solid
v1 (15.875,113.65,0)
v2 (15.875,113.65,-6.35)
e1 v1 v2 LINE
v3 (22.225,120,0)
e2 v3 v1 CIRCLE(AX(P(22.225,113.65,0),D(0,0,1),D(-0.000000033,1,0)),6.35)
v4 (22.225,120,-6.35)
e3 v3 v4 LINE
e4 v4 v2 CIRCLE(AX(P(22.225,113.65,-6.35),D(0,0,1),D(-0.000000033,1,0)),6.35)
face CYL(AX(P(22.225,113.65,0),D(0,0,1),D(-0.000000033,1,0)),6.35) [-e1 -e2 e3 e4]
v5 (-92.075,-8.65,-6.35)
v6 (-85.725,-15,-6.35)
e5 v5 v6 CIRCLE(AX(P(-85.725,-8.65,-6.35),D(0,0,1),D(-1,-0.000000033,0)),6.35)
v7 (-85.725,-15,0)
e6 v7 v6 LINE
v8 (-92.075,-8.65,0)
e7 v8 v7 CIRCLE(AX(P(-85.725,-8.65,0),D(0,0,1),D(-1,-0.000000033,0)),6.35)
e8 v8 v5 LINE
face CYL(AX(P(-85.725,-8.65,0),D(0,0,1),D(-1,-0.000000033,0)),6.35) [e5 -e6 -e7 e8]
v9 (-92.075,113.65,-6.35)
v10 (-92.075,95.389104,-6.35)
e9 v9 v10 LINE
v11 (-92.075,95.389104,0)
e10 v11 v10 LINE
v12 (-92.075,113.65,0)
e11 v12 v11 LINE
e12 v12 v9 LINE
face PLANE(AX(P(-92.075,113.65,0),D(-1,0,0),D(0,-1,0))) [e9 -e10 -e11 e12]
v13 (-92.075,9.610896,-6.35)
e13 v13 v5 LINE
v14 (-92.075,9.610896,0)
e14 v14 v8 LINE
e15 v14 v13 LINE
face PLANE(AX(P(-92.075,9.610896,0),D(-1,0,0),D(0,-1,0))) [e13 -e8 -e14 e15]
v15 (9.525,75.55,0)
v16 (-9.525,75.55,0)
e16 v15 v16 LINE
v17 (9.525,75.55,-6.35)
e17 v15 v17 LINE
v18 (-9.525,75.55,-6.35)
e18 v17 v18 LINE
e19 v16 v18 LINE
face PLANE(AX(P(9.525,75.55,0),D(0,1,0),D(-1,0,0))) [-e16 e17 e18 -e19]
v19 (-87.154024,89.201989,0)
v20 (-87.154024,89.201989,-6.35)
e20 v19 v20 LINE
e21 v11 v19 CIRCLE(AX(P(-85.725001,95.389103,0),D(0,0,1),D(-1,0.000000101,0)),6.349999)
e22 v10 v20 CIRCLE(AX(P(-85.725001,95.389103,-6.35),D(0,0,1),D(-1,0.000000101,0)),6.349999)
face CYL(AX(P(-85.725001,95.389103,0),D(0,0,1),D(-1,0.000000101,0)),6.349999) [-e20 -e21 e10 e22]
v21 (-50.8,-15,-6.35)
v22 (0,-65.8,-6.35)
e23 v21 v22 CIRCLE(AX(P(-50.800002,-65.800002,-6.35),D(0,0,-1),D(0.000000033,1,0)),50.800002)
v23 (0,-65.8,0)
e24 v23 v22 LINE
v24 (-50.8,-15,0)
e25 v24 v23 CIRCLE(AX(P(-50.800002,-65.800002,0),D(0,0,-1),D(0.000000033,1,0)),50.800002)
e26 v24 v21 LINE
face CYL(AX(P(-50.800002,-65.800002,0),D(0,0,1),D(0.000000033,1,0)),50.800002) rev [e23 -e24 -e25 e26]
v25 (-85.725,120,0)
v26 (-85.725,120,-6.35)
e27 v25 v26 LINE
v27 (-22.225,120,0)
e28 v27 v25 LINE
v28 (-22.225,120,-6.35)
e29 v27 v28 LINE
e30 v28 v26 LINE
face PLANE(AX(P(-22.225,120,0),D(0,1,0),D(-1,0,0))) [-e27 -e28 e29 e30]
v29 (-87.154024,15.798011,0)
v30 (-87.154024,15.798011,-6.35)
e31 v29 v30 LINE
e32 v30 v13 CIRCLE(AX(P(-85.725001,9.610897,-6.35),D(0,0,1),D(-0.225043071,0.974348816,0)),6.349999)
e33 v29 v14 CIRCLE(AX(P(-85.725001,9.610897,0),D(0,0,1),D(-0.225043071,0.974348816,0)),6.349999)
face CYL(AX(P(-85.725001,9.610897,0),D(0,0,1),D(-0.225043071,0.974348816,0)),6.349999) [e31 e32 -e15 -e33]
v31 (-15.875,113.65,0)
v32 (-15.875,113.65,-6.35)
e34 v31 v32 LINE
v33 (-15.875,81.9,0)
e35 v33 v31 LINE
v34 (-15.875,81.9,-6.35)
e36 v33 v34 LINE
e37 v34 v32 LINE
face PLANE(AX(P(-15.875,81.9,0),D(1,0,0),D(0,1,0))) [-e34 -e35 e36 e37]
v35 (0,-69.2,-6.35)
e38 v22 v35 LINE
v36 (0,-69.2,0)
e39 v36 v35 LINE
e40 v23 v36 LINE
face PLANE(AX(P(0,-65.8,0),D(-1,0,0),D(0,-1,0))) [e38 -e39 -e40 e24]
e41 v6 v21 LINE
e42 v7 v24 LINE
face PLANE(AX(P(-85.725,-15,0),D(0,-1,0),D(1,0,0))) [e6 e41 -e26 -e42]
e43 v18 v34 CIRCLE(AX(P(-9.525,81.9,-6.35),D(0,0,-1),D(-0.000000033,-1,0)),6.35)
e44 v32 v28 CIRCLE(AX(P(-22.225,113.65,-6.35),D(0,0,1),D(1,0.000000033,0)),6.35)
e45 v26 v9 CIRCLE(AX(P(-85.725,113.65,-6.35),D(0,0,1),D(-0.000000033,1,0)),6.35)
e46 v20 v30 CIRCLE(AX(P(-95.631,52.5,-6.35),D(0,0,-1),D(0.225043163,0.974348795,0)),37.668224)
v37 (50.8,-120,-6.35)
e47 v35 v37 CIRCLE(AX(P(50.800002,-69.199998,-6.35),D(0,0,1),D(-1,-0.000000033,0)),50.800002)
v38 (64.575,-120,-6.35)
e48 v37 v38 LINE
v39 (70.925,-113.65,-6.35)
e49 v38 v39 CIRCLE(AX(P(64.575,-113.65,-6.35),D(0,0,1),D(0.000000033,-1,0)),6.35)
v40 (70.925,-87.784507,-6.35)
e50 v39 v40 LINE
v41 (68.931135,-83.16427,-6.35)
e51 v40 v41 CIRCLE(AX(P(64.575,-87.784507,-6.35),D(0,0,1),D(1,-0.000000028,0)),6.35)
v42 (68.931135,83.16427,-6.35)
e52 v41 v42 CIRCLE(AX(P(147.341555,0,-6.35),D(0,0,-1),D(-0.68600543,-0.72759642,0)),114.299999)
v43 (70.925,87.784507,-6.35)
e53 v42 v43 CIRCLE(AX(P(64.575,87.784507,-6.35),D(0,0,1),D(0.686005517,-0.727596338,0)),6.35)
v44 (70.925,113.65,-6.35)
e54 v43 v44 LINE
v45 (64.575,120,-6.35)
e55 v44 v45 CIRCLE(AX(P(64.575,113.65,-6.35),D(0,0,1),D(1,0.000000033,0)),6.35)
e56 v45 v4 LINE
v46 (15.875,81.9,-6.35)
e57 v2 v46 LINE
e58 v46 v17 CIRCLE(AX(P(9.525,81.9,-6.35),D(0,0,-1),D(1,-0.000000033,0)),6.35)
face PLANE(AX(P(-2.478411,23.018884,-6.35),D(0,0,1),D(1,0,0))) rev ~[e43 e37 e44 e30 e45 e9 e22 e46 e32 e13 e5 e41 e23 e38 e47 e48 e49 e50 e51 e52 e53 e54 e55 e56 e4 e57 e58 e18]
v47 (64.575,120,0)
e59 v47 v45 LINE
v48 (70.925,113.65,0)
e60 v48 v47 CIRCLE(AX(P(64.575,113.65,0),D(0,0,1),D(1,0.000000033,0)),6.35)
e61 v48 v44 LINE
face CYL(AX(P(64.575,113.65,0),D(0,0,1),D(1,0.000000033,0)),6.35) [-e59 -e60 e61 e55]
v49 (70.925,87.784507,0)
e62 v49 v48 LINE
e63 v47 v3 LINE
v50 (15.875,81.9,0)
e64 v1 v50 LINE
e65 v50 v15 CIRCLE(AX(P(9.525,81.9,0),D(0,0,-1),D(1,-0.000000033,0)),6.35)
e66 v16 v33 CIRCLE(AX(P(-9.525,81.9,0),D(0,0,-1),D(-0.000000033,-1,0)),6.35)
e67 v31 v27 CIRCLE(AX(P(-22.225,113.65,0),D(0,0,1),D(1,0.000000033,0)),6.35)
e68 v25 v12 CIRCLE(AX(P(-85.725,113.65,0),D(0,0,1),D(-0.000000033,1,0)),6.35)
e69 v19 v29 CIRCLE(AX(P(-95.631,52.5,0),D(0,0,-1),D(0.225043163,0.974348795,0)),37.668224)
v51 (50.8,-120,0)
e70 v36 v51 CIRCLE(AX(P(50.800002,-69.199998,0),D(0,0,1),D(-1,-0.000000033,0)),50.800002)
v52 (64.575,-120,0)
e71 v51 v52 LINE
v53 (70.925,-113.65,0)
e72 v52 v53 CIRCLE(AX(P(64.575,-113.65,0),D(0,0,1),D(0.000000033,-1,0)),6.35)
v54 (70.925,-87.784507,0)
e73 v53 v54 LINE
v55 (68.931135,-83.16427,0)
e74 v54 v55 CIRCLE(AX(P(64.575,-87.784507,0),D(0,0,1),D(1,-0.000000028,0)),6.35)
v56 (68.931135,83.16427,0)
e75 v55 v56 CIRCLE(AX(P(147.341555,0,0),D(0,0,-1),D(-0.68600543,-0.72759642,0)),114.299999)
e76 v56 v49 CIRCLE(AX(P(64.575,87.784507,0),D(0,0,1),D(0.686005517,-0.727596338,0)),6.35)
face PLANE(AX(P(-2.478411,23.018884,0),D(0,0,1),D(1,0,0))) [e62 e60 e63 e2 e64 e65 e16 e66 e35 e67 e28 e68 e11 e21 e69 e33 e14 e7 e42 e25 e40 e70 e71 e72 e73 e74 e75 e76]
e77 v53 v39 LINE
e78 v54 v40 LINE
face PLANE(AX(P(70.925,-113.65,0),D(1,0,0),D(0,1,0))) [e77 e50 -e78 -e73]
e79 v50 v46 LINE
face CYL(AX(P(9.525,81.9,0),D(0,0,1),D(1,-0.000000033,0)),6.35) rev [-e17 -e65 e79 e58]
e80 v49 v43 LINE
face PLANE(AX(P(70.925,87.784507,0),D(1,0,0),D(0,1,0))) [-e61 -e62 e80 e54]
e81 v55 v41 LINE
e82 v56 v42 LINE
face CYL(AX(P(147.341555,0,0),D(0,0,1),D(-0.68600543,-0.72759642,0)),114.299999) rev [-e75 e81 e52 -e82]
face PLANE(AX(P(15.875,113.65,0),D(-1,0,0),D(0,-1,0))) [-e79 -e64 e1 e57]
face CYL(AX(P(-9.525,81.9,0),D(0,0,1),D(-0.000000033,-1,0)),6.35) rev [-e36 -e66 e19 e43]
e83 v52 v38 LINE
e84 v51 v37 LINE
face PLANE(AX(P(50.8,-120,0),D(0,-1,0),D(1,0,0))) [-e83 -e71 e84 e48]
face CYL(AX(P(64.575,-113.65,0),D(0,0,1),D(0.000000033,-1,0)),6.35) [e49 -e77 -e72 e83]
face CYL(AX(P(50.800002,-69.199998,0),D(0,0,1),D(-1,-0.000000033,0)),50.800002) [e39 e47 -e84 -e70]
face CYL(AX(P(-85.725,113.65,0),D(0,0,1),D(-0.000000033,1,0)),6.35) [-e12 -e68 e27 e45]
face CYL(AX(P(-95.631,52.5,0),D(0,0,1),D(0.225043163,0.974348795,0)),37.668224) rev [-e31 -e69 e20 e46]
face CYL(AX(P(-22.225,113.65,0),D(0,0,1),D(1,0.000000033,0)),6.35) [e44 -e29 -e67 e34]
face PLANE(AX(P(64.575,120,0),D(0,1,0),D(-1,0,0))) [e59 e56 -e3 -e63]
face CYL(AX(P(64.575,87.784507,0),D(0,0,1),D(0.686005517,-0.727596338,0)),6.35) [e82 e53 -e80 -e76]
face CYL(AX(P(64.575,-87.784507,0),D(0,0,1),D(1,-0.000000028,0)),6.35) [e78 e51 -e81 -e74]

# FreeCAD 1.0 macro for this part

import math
import FreeCAD as App
import Part
import Sketcher
from FreeCAD import Vector
Q = App.Units.Quantity

doc = App.newDocument("Part")
params = doc.addObject("Spreadsheet::Sheet", "Params")
for row, (alias, value) in enumerate([
    ("sketch1_radius", "2.0000001 in"),
    ("sketch1_radius2", "4.5 in"),
    ("sketch1_radius3", "0.25 in"),
    ("sketch1_width", "2.5 in"),
    ("sketch1_height", "1.25 in"),
    ("pad1_length", "0.25 in"),
], start=1):
    params.set(f"A{row}", alias)
    params.set(f"B{row}", "=" + value)
    params.setAlias(f"B{row}", alias)

body = doc.addObject("PartDesign::Body", "Body")

# Sketch on XY plane
sketch1 = body.newObject("Sketcher::SketchObject", "Sketch")
sketch1.AttachmentSupport = (doc.getObject("XY_Plane"), [""])
sketch1.MapMode = "FlatFace"
sketch1.addGeometry(Part.ArcOfCircle(Part.Circle(Vector(-85.7, 9.6, 0), Vector(0, 0, 1), 6.3), math.radians(103), math.radians(180)), False)
sketch1.addGeometry(Part.LineSegment(Vector(-92.1, 9.6, 0), Vector(-92.1, -8.7, 0)), False)
sketch1.addGeometry(Part.ArcOfCircle(Part.Circle(Vector(-85.7, -8.6, 0), Vector(0, 0, 1), 6.4), math.radians(-180), math.radians(-90)), False)
sketch1.addGeometry(Part.LineSegment(Vector(-85.7, -15, 0), Vector(-50.8, -15, 0)), False)
sketch1.addGeometry(Part.ArcOfCircle(Part.Circle(Vector(-50.8, -65.8, 0), Vector(0, 0, 1), 50.8), math.radians(0), math.radians(90)), False)
sketch1.addGeometry(Part.LineSegment(Vector(0, -65.8, 0), Vector(0, -69.2, 0)), False)
sketch1.addGeometry(Part.ArcOfCircle(Part.Circle(Vector(50.8, -69.2, 0), Vector(0, 0, 1), 50.8), math.radians(-180), math.radians(-90)), False)
sketch1.addGeometry(Part.LineSegment(Vector(50.8, -120, 0), Vector(64.6, -120, 0)), False)
sketch1.addGeometry(Part.ArcOfCircle(Part.Circle(Vector(64.6, -113.6, 0), Vector(0, 0, 1), 6.4), math.radians(-90), math.radians(0)), False)
sketch1.addGeometry(Part.LineSegment(Vector(70.9, -113.7, 0), Vector(70.9, -87.8, 0)), False)
sketch1.addGeometry(Part.ArcOfCircle(Part.Circle(Vector(64.6, -87.8, 0), Vector(0, 0, 1), 6.4), math.radians(0), math.radians(47)), False)
sketch1.addGeometry(Part.ArcOfCircle(Part.Circle(Vector(147.3, 0, 0), Vector(0, 0, 1), 114.3), math.radians(133), math.radians(227)), False)
sketch1.addGeometry(Part.ArcOfCircle(Part.Circle(Vector(64.6, 87.8, 0), Vector(0, 0, 1), 6.4), math.radians(-47), math.radians(0)), False)
sketch1.addGeometry(Part.LineSegment(Vector(70.9, 87.8, 0), Vector(70.9, 113.7, 0)), False)
sketch1.addGeometry(Part.ArcOfCircle(Part.Circle(Vector(64.6, 113.6, 0), Vector(0, 0, 1), 6.4), math.radians(0), math.radians(90)), False)
sketch1.addGeometry(Part.LineSegment(Vector(64.6, 120, 0), Vector(22.2, 120, 0)), False)
sketch1.addGeometry(Part.ArcOfCircle(Part.Circle(Vector(22.2, 113.6, 0), Vector(0, 0, 1), 6.4), math.radians(90), math.radians(180)), False)
sketch1.addGeometry(Part.LineSegment(Vector(15.9, 113.7, 0), Vector(15.9, 81.9, 0)), False)
sketch1.addGeometry(Part.ArcOfCircle(Part.Circle(Vector(9.5, 81.9, 0), Vector(0, 0, 1), 6.4), math.radians(-90), math.radians(0)), False)
sketch1.addGeometry(Part.LineSegment(Vector(9.5, 75.5, 0), Vector(-9.5, 75.5, 0)), False)
sketch1.addGeometry(Part.ArcOfCircle(Part.Circle(Vector(-9.5, 81.9, 0), Vector(0, 0, 1), 6.4), math.radians(-180), math.radians(-90)), False)
sketch1.addGeometry(Part.LineSegment(Vector(-15.9, 81.9, 0), Vector(-15.9, 113.7, 0)), False)
sketch1.addGeometry(Part.ArcOfCircle(Part.Circle(Vector(-22.2, 113.6, 0), Vector(0, 0, 1), 6.4), math.radians(0), math.radians(90)), False)
sketch1.addGeometry(Part.LineSegment(Vector(-22.2, 120, 0), Vector(-85.7, 120, 0)), False)
sketch1.addGeometry(Part.ArcOfCircle(Part.Circle(Vector(-85.7, 113.6, 0), Vector(0, 0, 1), 6.4), math.radians(90), math.radians(180)), False)
sketch1.addGeometry(Part.LineSegment(Vector(-92.1, 113.7, 0), Vector(-92.1, 95.4, 0)), False)
sketch1.addGeometry(Part.ArcOfCircle(Part.Circle(Vector(-85.7, 95.4, 0), Vector(0, 0, 1), 6.3), math.radians(180), math.radians(257)), False)
sketch1.addGeometry(Part.ArcOfCircle(Part.Circle(Vector(-95.6, 52.5, 0), Vector(0, 0, 1), 37.7), math.radians(-77), math.radians(77)), False)
sketch1.addConstraint(Sketcher.Constraint("Tangent", 0, 2, 1, 1))
sketch1.addConstraint(Sketcher.Constraint("Tangent", 1, 2, 2, 1))
sketch1.addConstraint(Sketcher.Constraint("Tangent", 2, 2, 3, 1))
sketch1.addConstraint(Sketcher.Constraint("Tangent", 3, 2, 4, 2))
sketch1.addConstraint(Sketcher.Constraint("Tangent", 4, 1, 5, 1))
sketch1.addConstraint(Sketcher.Constraint("Tangent", 5, 2, 6, 1))
sketch1.addConstraint(Sketcher.Constraint("Tangent", 6, 2, 7, 1))
sketch1.addConstraint(Sketcher.Constraint("Tangent", 7, 2, 8, 1))
sketch1.addConstraint(Sketcher.Constraint("Tangent", 8, 2, 9, 1))
sketch1.addConstraint(Sketcher.Constraint("Tangent", 9, 2, 10, 1))
sketch1.addConstraint(Sketcher.Constraint("Tangent", 10, 2, 11, 2))
sketch1.addConstraint(Sketcher.Constraint("Tangent", 11, 1, 12, 1))
sketch1.addConstraint(Sketcher.Constraint("Tangent", 12, 2, 13, 1))
sketch1.addConstraint(Sketcher.Constraint("Tangent", 13, 2, 14, 1))
sketch1.addConstraint(Sketcher.Constraint("Tangent", 14, 2, 15, 1))
sketch1.addConstraint(Sketcher.Constraint("Tangent", 15, 2, 16, 1))
sketch1.addConstraint(Sketcher.Constraint("Tangent", 16, 2, 17, 1))
sketch1.addConstraint(Sketcher.Constraint("Tangent", 17, 2, 18, 2))
sketch1.addConstraint(Sketcher.Constraint("Tangent", 18, 1, 19, 1))
sketch1.addConstraint(Sketcher.Constraint("Tangent", 19, 2, 20, 2))
sketch1.addConstraint(Sketcher.Constraint("Tangent", 20, 1, 21, 1))
sketch1.addConstraint(Sketcher.Constraint("Tangent", 21, 2, 22, 1))
sketch1.addConstraint(Sketcher.Constraint("Tangent", 22, 2, 23, 1))
sketch1.addConstraint(Sketcher.Constraint("Tangent", 23, 2, 24, 1))
sketch1.addConstraint(Sketcher.Constraint("Tangent", 24, 2, 25, 1))
sketch1.addConstraint(Sketcher.Constraint("Tangent", 25, 2, 26, 1))
sketch1.addConstraint(Sketcher.Constraint("Tangent", 26, 2, 27, 2))
sketch1.addConstraint(Sketcher.Constraint("Tangent", 27, 1, 0, 1))
sketch1.addConstraint(Sketcher.Constraint("Vertical", 1))
sketch1.addConstraint(Sketcher.Constraint("Horizontal", 3))
sketch1.addConstraint(Sketcher.Constraint("Vertical", 5))
sketch1.addConstraint(Sketcher.Constraint("Horizontal", 7))
sketch1.addConstraint(Sketcher.Constraint("Vertical", 9))
sketch1.addConstraint(Sketcher.Constraint("Vertical", 13))
sketch1.addConstraint(Sketcher.Constraint("Horizontal", 15))
sketch1.addConstraint(Sketcher.Constraint("Vertical", 17))
sketch1.addConstraint(Sketcher.Constraint("Horizontal", 19))
sketch1.addConstraint(Sketcher.Constraint("Vertical", 21))
sketch1.addConstraint(Sketcher.Constraint("Horizontal", 23))
sketch1.addConstraint(Sketcher.Constraint("Vertical", 25))
sketch1.addConstraint(Sketcher.Constraint("Equal", 0, 2))
sketch1.addConstraint(Sketcher.Constraint("Equal", 4, 6))
sketch1.addConstraint(Sketcher.Constraint("Equal", 2, 8))
sketch1.addConstraint(Sketcher.Constraint("Equal", 8, 10))
sketch1.addConstraint(Sketcher.Constraint("Equal", 10, 12))
sketch1.addConstraint(Sketcher.Constraint("Equal", 12, 14))
sketch1.addConstraint(Sketcher.Constraint("Equal", 14, 16))
sketch1.addConstraint(Sketcher.Constraint("Equal", 16, 18))
sketch1.addConstraint(Sketcher.Constraint("Equal", 18, 20))
sketch1.addConstraint(Sketcher.Constraint("Equal", 20, 22))
sketch1.addConstraint(Sketcher.Constraint("Equal", 22, 24))
sketch1.addConstraint(Sketcher.Constraint("Equal", 24, 26))
sketch1.addConstraint(Sketcher.Constraint("Symmetric", 16, 3, 22, 3, -2))
sketch1.addConstraint(Sketcher.Constraint("Symmetric", 10, 3, 12, 3, -1))
sketch1.addConstraint(Sketcher.Constraint("PointOnObject", 4, 1, -2))
sketch1.addConstraint(Sketcher.Constraint("Vertical", 2, 3, 24, 3))
sketch1.addConstraint(Sketcher.Constraint("Equal", 9, 13))
sketch1.addConstraint(Sketcher.Constraint("Equal", 1, 25))
sketch1.addConstraint(Sketcher.Constraint("Radius", 4, Q("2.0000001 in")))
sketch1.addConstraint(Sketcher.Constraint("Radius", 11, Q("4.5 in")))
sketch1.addConstraint(Sketcher.Constraint("Radius", 0, Q("0.25 in")))
sketch1.addConstraint(Sketcher.Constraint("DistanceX", 23, 2, 23, 1, Q("2.5 in")))
sketch1.addConstraint(Sketcher.Constraint("DistanceX", 20, 3, 16, 2, Q("1 in")))
sketch1.addConstraint(Sketcher.Constraint("DistanceY", 17, 2, 17, 1, Q("1.25 in")))
sketch1.addConstraint(Sketcher.Constraint("DistanceX", 27, 3, 26, 3, Q("0.39 in")))
sketch1.addConstraint(Sketcher.Constraint("DistanceX", 7, 1, 7, 2, Q("13.775 mm")))
sketch1.addConstraint(Sketcher.Constraint("DistanceY", 5, 2, 5, 1, Q("3.4 mm")))
sketch1.addConstraint(Sketcher.Constraint("Radius", 27, Q("37.668224 mm")))
sketch1.addConstraint(Sketcher.Constraint("DistanceY", 2, 3, -1, 1, Q("8.65 mm")))
sketch1.addConstraint(Sketcher.Constraint("DistanceY", 9, 1, 9, 2, Q("25.865493 mm")))
sketch1.setExpression("Constraints[58]", "Params.sketch1_radius")
sketch1.setExpression("Constraints[59]", "Params.sketch1_radius2")
sketch1.setExpression("Constraints[60]", "Params.sketch1_radius3")
sketch1.setExpression("Constraints[61]", "Params.sketch1_width")
sketch1.setExpression("Constraints[63]", "Params.sketch1_height")
pad1 = body.newObject("PartDesign::Pad", "Pad")
pad1.Profile = sketch1
pad1.setExpression("Length", "Params.pad1_length")
pad1.Reversed = True

doc.recompute()
